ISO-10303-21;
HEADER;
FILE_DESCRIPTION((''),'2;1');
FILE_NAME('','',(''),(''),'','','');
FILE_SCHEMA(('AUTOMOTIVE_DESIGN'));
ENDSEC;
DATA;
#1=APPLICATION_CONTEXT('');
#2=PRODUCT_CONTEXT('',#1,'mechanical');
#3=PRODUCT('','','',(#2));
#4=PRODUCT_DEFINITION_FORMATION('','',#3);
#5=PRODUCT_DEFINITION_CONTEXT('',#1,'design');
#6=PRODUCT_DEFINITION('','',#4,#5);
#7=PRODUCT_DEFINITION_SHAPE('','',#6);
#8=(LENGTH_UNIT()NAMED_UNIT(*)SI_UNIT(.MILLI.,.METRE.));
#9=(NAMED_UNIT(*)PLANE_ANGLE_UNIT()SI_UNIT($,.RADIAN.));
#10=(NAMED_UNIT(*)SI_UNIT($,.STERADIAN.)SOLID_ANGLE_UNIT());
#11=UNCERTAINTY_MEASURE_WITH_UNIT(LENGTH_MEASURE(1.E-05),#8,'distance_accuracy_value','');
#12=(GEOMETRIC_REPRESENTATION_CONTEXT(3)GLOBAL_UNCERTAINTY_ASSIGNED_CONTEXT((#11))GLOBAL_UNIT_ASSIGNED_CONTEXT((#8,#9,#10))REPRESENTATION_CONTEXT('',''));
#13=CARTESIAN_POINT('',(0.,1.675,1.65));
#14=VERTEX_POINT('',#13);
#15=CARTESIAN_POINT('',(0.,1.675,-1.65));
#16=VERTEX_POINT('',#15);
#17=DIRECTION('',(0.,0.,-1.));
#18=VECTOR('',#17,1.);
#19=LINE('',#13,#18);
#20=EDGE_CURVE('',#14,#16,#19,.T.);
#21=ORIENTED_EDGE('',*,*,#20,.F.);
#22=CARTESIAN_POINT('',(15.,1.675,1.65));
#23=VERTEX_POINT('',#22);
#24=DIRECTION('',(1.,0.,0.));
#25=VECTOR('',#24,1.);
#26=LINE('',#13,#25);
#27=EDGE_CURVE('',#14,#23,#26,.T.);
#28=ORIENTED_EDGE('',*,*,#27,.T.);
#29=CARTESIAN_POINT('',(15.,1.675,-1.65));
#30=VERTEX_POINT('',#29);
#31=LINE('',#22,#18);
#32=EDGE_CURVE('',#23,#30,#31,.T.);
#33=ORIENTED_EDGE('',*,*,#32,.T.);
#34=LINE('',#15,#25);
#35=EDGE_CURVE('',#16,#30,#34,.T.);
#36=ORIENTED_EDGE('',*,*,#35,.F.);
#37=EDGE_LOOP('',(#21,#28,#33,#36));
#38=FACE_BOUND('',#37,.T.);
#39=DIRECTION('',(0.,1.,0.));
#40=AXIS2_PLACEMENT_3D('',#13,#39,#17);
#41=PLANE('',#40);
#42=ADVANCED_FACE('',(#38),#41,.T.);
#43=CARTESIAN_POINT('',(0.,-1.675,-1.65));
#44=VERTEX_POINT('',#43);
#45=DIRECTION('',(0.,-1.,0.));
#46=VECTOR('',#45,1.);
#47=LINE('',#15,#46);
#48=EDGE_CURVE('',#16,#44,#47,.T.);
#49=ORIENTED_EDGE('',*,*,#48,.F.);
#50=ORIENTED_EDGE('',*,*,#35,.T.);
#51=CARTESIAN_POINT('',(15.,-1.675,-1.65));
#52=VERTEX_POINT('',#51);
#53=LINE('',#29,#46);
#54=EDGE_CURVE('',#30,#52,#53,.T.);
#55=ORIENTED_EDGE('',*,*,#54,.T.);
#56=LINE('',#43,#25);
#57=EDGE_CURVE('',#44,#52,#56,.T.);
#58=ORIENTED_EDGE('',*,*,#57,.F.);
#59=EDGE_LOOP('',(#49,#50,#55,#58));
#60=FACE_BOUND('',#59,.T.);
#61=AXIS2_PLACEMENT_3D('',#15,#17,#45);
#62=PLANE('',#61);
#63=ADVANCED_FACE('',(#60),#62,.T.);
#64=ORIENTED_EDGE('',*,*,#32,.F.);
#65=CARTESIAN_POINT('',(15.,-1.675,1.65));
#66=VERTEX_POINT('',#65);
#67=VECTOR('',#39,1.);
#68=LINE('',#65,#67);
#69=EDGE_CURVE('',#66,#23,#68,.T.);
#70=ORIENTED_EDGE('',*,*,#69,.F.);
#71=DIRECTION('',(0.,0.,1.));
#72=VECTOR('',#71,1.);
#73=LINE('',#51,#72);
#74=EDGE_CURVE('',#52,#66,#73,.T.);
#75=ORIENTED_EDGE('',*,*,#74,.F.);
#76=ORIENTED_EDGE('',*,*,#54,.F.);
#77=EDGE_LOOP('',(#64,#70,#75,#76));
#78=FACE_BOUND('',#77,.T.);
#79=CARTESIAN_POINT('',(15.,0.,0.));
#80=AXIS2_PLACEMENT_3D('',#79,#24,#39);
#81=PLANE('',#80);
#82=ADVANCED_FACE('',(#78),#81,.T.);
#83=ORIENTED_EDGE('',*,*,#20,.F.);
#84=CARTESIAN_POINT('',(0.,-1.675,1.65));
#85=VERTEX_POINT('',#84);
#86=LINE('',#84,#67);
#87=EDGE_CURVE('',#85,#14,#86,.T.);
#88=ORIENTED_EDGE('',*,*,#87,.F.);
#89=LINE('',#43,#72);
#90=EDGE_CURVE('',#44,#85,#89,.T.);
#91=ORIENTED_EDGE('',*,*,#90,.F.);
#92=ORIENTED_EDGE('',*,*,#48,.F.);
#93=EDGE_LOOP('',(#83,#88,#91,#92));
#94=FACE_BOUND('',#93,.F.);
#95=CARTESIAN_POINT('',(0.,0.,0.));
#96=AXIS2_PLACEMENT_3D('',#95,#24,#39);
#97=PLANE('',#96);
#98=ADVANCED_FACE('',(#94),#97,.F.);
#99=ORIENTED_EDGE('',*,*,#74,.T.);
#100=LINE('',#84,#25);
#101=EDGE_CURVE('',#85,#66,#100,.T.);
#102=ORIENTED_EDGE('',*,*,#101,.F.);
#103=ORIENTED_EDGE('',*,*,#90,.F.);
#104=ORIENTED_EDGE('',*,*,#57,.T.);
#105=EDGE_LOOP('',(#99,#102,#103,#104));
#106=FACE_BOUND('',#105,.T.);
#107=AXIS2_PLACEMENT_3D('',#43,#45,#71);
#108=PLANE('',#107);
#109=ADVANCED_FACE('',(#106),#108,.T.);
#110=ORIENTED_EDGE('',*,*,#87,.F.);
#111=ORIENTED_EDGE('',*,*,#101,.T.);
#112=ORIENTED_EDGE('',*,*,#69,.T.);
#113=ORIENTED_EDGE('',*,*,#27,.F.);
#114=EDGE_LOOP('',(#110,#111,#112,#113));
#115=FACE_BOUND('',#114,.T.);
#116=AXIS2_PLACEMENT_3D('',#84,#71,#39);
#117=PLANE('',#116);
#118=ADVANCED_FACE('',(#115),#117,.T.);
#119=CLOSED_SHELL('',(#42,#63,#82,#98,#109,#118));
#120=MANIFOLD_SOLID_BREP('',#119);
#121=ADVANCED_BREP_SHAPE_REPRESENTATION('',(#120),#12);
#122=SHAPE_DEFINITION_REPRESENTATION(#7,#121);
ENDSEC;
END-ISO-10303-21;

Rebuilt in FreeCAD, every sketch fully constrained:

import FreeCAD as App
import Part
import Sketcher
from FreeCAD import Vector
Q = App.Units.Quantity


def add_polygon(sketch, points):
    """Adds a closed chain of lines whose ends are joined by coincident constraints."""
    first, n = sketch.GeometryCount, len(points)
    for a, b in zip(points, points[1:] + points[:1]):
        sketch.addGeometry(Part.LineSegment(App.Vector(*a, 0), App.Vector(*b, 0)), False)
    for i in range(n):
        sketch.addConstraint(Sketcher.Constraint("Coincident", first + i, 2, first + (i + 1) % n, 1))

doc = App.newDocument("Part")
body = doc.addObject("PartDesign::Body", "Body")

# Sketch on YZ plane
sketch1 = doc.addObject("Sketcher::SketchObject", "Sketch")
body.addObject(sketch1)
sketch1.AttachmentSupport = (doc.YZ_Plane, [""])
sketch1.MapMode = "FlatFace"
add_polygon(sketch1, [(1.7, 1.6), (-1.7, 1.6), (-1.7, -1.6), (1.7, -1.6)])  # lines 0-3
sketch1.addConstraint([
    Sketcher.Constraint("Horizontal", 0),
    Sketcher.Constraint("Vertical", 1),
    Sketcher.Constraint("Horizontal", 2),
    Sketcher.Constraint("Vertical", 3),
    Sketcher.Constraint("Symmetric", 0, 2, 2, 2, -1, 1),
    Sketcher.Constraint("DistanceY", 1, 2, 1, 1, Q("3.3 mm")),
    Sketcher.Constraint("DistanceX", 0, 2, 0, 1, Q("3.35 mm")),
])
pad1 = doc.addObject("PartDesign::Pad", "Pad")
body.addObject(pad1)
pad1.Profile = sketch1
pad1.Length = 15

doc.recompute()
